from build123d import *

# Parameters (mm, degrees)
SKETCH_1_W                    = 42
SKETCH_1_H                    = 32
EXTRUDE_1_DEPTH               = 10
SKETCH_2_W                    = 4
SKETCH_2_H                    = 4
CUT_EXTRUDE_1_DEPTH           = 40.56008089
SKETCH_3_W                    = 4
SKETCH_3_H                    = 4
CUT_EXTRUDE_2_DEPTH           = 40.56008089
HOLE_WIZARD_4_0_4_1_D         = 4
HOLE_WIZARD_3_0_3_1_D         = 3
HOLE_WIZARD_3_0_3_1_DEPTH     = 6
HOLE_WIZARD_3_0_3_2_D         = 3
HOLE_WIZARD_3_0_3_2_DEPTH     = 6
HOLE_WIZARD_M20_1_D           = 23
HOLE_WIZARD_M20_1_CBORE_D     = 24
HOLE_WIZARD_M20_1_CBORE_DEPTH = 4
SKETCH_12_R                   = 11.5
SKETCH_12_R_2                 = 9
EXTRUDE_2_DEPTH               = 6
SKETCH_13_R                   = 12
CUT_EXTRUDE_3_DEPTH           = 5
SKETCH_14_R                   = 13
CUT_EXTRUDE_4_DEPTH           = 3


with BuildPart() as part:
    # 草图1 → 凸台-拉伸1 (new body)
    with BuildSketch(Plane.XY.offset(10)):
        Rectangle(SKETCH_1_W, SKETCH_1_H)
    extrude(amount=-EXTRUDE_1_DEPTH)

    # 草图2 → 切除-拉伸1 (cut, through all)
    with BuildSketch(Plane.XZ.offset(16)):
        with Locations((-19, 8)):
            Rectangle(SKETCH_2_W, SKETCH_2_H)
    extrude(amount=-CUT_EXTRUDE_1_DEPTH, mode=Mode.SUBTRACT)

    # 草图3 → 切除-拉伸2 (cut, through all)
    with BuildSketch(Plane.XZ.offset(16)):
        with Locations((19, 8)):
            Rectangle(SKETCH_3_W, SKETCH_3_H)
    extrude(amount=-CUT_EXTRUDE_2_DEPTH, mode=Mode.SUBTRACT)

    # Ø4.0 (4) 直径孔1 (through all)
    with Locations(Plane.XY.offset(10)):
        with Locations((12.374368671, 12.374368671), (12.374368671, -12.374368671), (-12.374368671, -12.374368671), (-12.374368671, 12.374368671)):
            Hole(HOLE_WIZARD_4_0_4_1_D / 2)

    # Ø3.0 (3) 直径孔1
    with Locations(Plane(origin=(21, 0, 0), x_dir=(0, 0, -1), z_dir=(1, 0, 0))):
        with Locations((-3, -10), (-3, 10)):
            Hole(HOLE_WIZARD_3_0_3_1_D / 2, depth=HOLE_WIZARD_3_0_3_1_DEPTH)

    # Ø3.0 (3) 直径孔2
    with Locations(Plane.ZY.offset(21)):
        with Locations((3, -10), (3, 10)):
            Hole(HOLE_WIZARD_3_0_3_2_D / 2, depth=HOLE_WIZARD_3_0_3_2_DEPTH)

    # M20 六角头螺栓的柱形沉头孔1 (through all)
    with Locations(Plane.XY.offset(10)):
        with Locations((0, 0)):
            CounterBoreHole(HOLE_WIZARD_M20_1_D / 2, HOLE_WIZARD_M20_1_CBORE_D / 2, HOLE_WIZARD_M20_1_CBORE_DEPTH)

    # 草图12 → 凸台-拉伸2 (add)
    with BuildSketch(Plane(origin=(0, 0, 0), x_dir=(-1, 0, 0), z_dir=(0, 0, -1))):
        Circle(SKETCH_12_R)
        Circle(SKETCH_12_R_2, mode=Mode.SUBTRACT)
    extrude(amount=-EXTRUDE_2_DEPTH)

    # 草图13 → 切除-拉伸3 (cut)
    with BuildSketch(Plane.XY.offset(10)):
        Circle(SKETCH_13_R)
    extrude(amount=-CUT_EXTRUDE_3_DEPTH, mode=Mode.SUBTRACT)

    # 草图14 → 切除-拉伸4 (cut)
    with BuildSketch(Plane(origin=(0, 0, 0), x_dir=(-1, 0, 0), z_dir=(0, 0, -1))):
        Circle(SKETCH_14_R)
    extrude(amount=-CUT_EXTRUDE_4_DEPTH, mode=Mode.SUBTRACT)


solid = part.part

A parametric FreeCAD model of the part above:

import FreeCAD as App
import Part
import Sketcher

V = App.Vector


def add_polygon(sketch, points):
    """Adds a closed chain of lines whose ends are joined by coincident constraints."""
    first, n = sketch.GeometryCount, len(points)
    for a, b in zip(points, points[1:] + points[:1]):
        sketch.addGeometry(Part.LineSegment(App.Vector(*a, 0), App.Vector(*b, 0)), False)
    for i in range(n):
        sketch.addConstraint(Sketcher.Constraint("Coincident", first + i, 2, first + (i + 1) % n, 1))

doc = App.newDocument("Part")
body = doc.addObject("PartDesign::Body", "Body")

sketch1 = body.newObject("Sketcher::SketchObject", "Sketch")
sketch1.AttachmentSupport = (doc.getObject("XY_Plane"), [""])
sketch1.MapMode = "FlatFace"
sketch1.AttachmentOffset = App.Placement(V(0, 0, 10), App.Rotation())
add_polygon(sketch1, [(-21, 16), (-21, -16), (21, -16), (21, 16)])
sketch1.addConstraint(Sketcher.Constraint("Vertical", 0))
sketch1.addConstraint(Sketcher.Constraint("Horizontal", 1))
sketch1.addConstraint(Sketcher.Constraint("Vertical", 2))
sketch1.addConstraint(Sketcher.Constraint("Horizontal", 3))
sketch1.addConstraint(Sketcher.Constraint("Symmetric", 0, 2, 2, 2, -1, 1))
sketch1.addConstraint(Sketcher.Constraint("DistanceX", 1, 1, 1, 2, 42.0))
sketch1.addConstraint(Sketcher.Constraint("DistanceY", 0, 2, 0, 1, 32.0))
pad1 = body.newObject("PartDesign::Pad", "Pad")
pad1.Profile = sketch1
pad1.Length = 10
pad1.Reversed = True

sketch2 = body.newObject("Sketcher::SketchObject", "Sketch001")
sketch2.AttachmentSupport = (doc.getObject("XZ_Plane"), [""])
sketch2.MapMode = "FlatFace"
sketch2.AttachmentOffset = App.Placement(V(0, 0, 16), App.Rotation())
add_polygon(sketch2, [(-21, 10), (-21, 6), (-17, 6), (-17, 10)])
sketch2.addConstraint(Sketcher.Constraint("Vertical", 0))
sketch2.addConstraint(Sketcher.Constraint("Horizontal", 1))
sketch2.addConstraint(Sketcher.Constraint("Vertical", 2))
sketch2.addConstraint(Sketcher.Constraint("Horizontal", 3))
sketch2.addConstraint(Sketcher.Constraint("Equal", 3, 0))
sketch2.addConstraint(Sketcher.Constraint("DistanceX", 1, 1, 1, 2, 4.0))
sketch2.addConstraint(Sketcher.Constraint("DistanceX", 0, 2, -1, 1, 21.0))
sketch2.addConstraint(Sketcher.Constraint("DistanceY", -1, 1, 0, 2, 6.0))
pocket1 = body.newObject("PartDesign::Pocket", "Pocket")
pocket1.Profile = sketch2
pocket1.Type = "ThroughAll"

sketch3 = body.newObject("Sketcher::SketchObject", "Sketch002")
sketch3.AttachmentSupport = (doc.getObject("XZ_Plane"), [""])
sketch3.MapMode = "FlatFace"
sketch3.AttachmentOffset = App.Placement(V(0, 0, 16), App.Rotation())
add_polygon(sketch3, [(17, 10), (17, 6), (21, 6), (21, 10)])
sketch3.addConstraint(Sketcher.Constraint("Vertical", 0))
sketch3.addConstraint(Sketcher.Constraint("Horizontal", 1))
sketch3.addConstraint(Sketcher.Constraint("Vertical", 2))
sketch3.addConstraint(Sketcher.Constraint("Horizontal", 3))
sketch3.addConstraint(Sketcher.Constraint("Equal", 3, 0))
sketch3.addConstraint(Sketcher.Constraint("DistanceX", 1, 1, 1, 2, 4.0))
sketch3.addConstraint(Sketcher.Constraint("DistanceX", -1, 1, 0, 2, 17.0))
sketch3.addConstraint(Sketcher.Constraint("DistanceY", -1, 1, 0, 2, 6.0))
pocket2 = body.newObject("PartDesign::Pocket", "Pocket001")
pocket2.Profile = sketch3
pocket2.Type = "ThroughAll"

sketch4 = body.newObject("Sketcher::SketchObject", "Sketch003")
sketch4.AttachmentSupport = (doc.getObject("XY_Plane"), [""])
sketch4.MapMode = "FlatFace"
sketch4.AttachmentOffset = App.Placement(V(0, 0, 10), App.Rotation())
sketch4.addGeometry(Part.Circle(V(12.374369, 12.374369, 0), V(0, 0, 1), 2), False)
sketch4.addGeometry(Part.Circle(V(12.374369, -12.374369, 0), V(0, 0, 1), 2), False)
sketch4.addGeometry(Part.Circle(V(-12.374369, -12.374369, 0), V(0, 0, 1), 2), False)
sketch4.addGeometry(Part.Circle(V(-12.374369, 12.374369, 0), V(0, 0, 1), 2), False)
sketch4.addConstraint(Sketcher.Constraint("Equal", 0, 1))
sketch4.addConstraint(Sketcher.Constraint("Equal", 1, 2))
sketch4.addConstraint(Sketcher.Constraint("Equal", 2, 3))
sketch4.addConstraint(Sketcher.Constraint("Symmetric", 0, 3, 2, 3, -1, 1))
sketch4.addConstraint(Sketcher.Constraint("Symmetric", 1, 3, 3, 3, -1, 1))
sketch4.addConstraint(Sketcher.Constraint("Symmetric", 1, 3, 2, 3, -2))
sketch4.addConstraint(Sketcher.Constraint("Diameter", 0, 4.0))
sketch4.addConstraint(Sketcher.Constraint("DistanceX", -1, 1, 0, 3, 12.374369))
sketch4.addConstraint(Sketcher.Constraint("DistanceY", -1, 1, 0, 3, 12.374369))
doc.recompute()
hole = body.newObject("PartDesign::Hole", "Hole")
hole.Profile = sketch4
hole.ThreadType = "None"
hole.Diameter = 4
hole.DepthType = "ThroughAll"

sketch5 = body.newObject("Sketcher::SketchObject", "Sketch004")
sketch5.AttachmentSupport = (doc.getObject("YZ_Plane"), [""])
sketch5.MapMode = "FlatFace"
sketch5.AttachmentOffset = App.Placement(V(0, 0, 21), App.Rotation())
sketch5.addGeometry(Part.Circle(V(-10, 3, 0), V(0, 0, 1), 1.5), False)
sketch5.addGeometry(Part.Circle(V(10, 3, 0), V(0, 0, 1), 1.5), False)
sketch5.addConstraint(Sketcher.Constraint("Equal", 0, 1))
sketch5.addConstraint(Sketcher.Constraint("Symmetric", 0, 3, 1, 3, -2))
sketch5.addConstraint(Sketcher.Constraint("Diameter", 0, 3.0))
sketch5.addConstraint(Sketcher.Constraint("DistanceX", 0, 3, -1, 1, 10.0))
sketch5.addConstraint(Sketcher.Constraint("DistanceY", -1, 1, 0, 3, 3.0))
doc.recompute()
hole2 = body.newObject("PartDesign::Hole", "Hole001")
hole2.Profile = sketch5
hole2.ThreadType = "None"
hole2.Diameter = 3
hole2.DepthType = "Dimension"
hole2.Depth = 6
hole2.DrillPoint = "Flat"

sketch6 = body.newObject("Sketcher::SketchObject", "Sketch005")
sketch6.AttachmentSupport = (doc.getObject("YZ_Plane"), [""])
sketch6.MapMode = "FlatFace"
sketch6.AttachmentOffset = App.Placement(V(0, 0, -21), App.Rotation())
sketch6.addGeometry(Part.Circle(V(-10, 3, 0), V(0, 0, 1), 1.5), False)
sketch6.addGeometry(Part.Circle(V(10, 3, 0), V(0, 0, 1), 1.5), False)
sketch6.addConstraint(Sketcher.Constraint("Equal", 0, 1))
sketch6.addConstraint(Sketcher.Constraint("Symmetric", 0, 3, 1, 3, -2))
sketch6.addConstraint(Sketcher.Constraint("Diameter", 0, 3.0))
sketch6.addConstraint(Sketcher.Constraint("DistanceX", 0, 3, -1, 1, 10.0))
sketch6.addConstraint(Sketcher.Constraint("DistanceY", -1, 1, 0, 3, 3.0))
doc.recompute()
hole3 = body.newObject("PartDesign::Hole", "Hole002")
hole3.Profile = sketch6
hole3.ThreadType = "None"
hole3.Diameter = 3
hole3.DepthType = "Dimension"
hole3.Depth = 6
hole3.DrillPoint = "Flat"
hole3.Reversed = True

sketch7 = body.newObject("Sketcher::SketchObject", "Sketch006")
sketch7.AttachmentSupport = (doc.getObject("XY_Plane"), [""])
sketch7.MapMode = "FlatFace"
sketch7.AttachmentOffset = App.Placement(V(0, 0, 10), App.Rotation())
sketch7.addGeometry(Part.Circle(V(0, 0, 0), V(0, 0, 1), 11.5), False)
sketch7.addConstraint(Sketcher.Constraint("Coincident", 0, 3, -1, 1))
sketch7.addConstraint(Sketcher.Constraint("Diameter", 0, 23.0))
doc.recompute()
hole4 = body.newObject("PartDesign::Hole", "Hole003")
hole4.Profile = sketch7
hole4.ThreadType = "None"
hole4.Diameter = 23
hole4.DepthType = "ThroughAll"
hole4.HoleCutType = "Counterbore"
hole4.HoleCutDiameter = 24
hole4.HoleCutDepth = 4

sketch8 = body.newObject("Sketcher::SketchObject", "Sketch007")
sketch8.AttachmentSupport = (doc.getObject("XY_Plane"), [""])
sketch8.MapMode = "FlatFace"
sketch8.addGeometry(Part.Circle(V(0, 0, 0), V(0, 0, 1), 11.5), False)
sketch8.addGeometry(Part.Circle(V(0, 0, 0), V(0, 0, 1), 9), False)
sketch8.addConstraint(Sketcher.Constraint("Coincident", 0, 3, -1, 1))
sketch8.addConstraint(Sketcher.Constraint("Coincident", 1, 3, -1, 1))
sketch8.addConstraint(Sketcher.Constraint("Diameter", 0, 23.0))
sketch8.addConstraint(Sketcher.Constraint("Diameter", 1, 18.0))
pad2 = body.newObject("PartDesign::Pad", "Pad001")
pad2.Profile = sketch8
pad2.Length = 6

sketch9 = body.newObject("Sketcher::SketchObject", "Sketch008")
sketch9.AttachmentSupport = (doc.getObject("XY_Plane"), [""])
sketch9.MapMode = "FlatFace"
sketch9.AttachmentOffset = App.Placement(V(0, 0, 10), App.Rotation())
sketch9.addGeometry(Part.Circle(V(0, 0, 0), V(0, 0, 1), 12), False)
sketch9.addConstraint(Sketcher.Constraint("Coincident", 0, 3, -1, 1))
sketch9.addConstraint(Sketcher.Constraint("Diameter", 0, 24.0))
pocket3 = body.newObject("PartDesign::Pocket", "Pocket002")
pocket3.Profile = sketch9
pocket3.Length = 5

sketch10 = body.newObject("Sketcher::SketchObject", "Sketch009")
sketch10.AttachmentSupport = (doc.getObject("XY_Plane"), [""])
sketch10.MapMode = "FlatFace"
sketch10.addGeometry(Part.Circle(V(0, 0, 0), V(0, 0, 1), 13), False)
sketch10.addConstraint(Sketcher.Constraint("Coincident", 0, 3, -1, 1))
sketch10.addConstraint(Sketcher.Constraint("Diameter", 0, 26.0))
pocket4 = body.newObject("PartDesign::Pocket", "Pocket003")
pocket4.Profile = sketch10
pocket4.Length = 3
pocket4.Reversed = True

doc.recompute()
